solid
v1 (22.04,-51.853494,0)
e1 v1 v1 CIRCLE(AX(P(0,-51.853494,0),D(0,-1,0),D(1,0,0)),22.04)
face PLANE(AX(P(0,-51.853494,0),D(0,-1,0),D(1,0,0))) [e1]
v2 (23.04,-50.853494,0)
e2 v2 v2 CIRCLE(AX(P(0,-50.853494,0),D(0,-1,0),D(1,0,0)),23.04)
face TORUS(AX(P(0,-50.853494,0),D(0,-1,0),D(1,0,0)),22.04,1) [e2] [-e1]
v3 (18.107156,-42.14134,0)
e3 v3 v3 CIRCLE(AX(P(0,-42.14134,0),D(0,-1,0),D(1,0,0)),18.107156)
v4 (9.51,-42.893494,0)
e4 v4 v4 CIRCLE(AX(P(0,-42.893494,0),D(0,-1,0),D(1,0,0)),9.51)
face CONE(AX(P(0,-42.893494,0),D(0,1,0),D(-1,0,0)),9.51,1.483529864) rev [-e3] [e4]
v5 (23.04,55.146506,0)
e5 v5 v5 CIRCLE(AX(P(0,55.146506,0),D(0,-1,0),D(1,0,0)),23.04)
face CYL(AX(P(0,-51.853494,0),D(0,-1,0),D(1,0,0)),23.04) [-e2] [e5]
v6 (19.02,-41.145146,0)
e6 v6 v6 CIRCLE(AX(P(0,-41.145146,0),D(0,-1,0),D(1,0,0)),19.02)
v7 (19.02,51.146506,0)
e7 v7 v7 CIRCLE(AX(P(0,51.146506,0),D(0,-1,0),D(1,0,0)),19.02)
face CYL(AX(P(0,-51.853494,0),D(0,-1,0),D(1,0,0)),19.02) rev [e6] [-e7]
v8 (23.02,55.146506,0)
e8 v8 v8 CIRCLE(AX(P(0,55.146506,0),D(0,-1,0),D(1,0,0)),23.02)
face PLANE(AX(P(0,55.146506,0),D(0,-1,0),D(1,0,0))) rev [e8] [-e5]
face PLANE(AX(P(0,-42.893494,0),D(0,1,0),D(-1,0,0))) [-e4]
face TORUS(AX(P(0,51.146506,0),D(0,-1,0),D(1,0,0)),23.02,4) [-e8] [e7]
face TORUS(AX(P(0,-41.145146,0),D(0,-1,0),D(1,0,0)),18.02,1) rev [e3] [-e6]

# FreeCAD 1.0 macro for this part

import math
import FreeCAD as App
import Part
import Sketcher
from FreeCAD import Vector
Q = App.Units.Quantity

doc = App.newDocument("Part")
body = doc.addObject("PartDesign::Body", "Body")

# Sketch on XY plane
sketch1 = body.newObject("Sketcher::SketchObject", "Sketch")
sketch1.AttachmentSupport = (doc.getObject("XY_Plane"), [""])
sketch1.MapMode = "FlatFace"
sketch1.addGeometry([
    Part.LineSegment(Vector(-23.04, 55.146506, 0), Vector(-23.04, -50.853494, 0)),  # 0
    Part.ArcOfCircle(Part.Circle(Vector(-22.04, -50.853494, 0), Vector(0, 0, 1), 1), math.radians(-180), math.radians(-90)),  # 1
    Part.LineSegment(Vector(-22.04, -51.853494, 0), Vector(0, -51.853494, 0)),  # 2
    Part.LineSegment(Vector(0, -51.853494, 0), Vector(0, -42.893494, 0)),  # 3
    Part.LineSegment(Vector(0, -42.893494, 0), Vector(-9.51, -42.893494, 0)),  # 4
    Part.LineSegment(Vector(-9.51, -42.893494, 0), Vector(-18.107156, -42.14134, 0)),  # 5
    Part.ArcOfCircle(Part.Circle(Vector(-18.02, -41.145146, 0), Vector(0, 0, 1), 1), math.radians(-180), math.radians(-95)),  # 6
    Part.LineSegment(Vector(-19.02, -41.145146, 0), Vector(-19.02, 51.146506, 0)),  # 7
    Part.ArcOfCircle(Part.Circle(Vector(-23.02, 51.146506, 0), Vector(0, 0, 1), 4), math.radians(0), math.radians(90)),  # 8
    Part.LineSegment(Vector(-23.02, 55.146506, 0), Vector(-23.04, 55.146506, 0)),  # 9
], False)
sketch1.addConstraint([
    Sketcher.Constraint("Tangent", 0, 2, 1, 1),
    Sketcher.Constraint("Tangent", 1, 2, 2, 1),
    Sketcher.Constraint("Coincident", 2, 2, 3, 1),
    Sketcher.Constraint("Coincident", 3, 2, 4, 1),
    Sketcher.Constraint("Coincident", 4, 2, 5, 1),
    Sketcher.Constraint("Tangent", 5, 2, 6, 2),
    Sketcher.Constraint("Tangent", 6, 1, 7, 1),
    Sketcher.Constraint("Tangent", 7, 2, 8, 1),
    Sketcher.Constraint("Tangent", 8, 2, 9, 1),
    Sketcher.Constraint("Coincident", 9, 2, 0, 1),
    Sketcher.Constraint("Vertical", 0),
    Sketcher.Constraint("Horizontal", 2),
    Sketcher.Constraint("Vertical", 3),
    Sketcher.Constraint("Horizontal", 4),
    Sketcher.Constraint("Vertical", 7),
    Sketcher.Constraint("Horizontal", 9),
    Sketcher.Constraint("Equal", 1, 6),
    Sketcher.Constraint("PointOnObject", 2, 2, -2),
    Sketcher.Constraint("Radius", 1, Q("1 mm")),
    Sketcher.Constraint("Radius", 8, Q("4 mm")),
    Sketcher.Constraint("DistanceY", 0, 2, 0, 1, Q("106 mm")),
    Sketcher.Constraint("Angle", 5, Q("175 deg")),
    Sketcher.Constraint("DistanceX", 2, 1, 2, 2, Q("22.04 mm")),
    Sketcher.Constraint("DistanceX", 4, 2, 4, 1, Q("9.51 mm")),
    Sketcher.Constraint("DistanceX", 9, 2, 9, 1, Q("0.02 mm")),
    Sketcher.Constraint("DistanceY", 3, 1, 3, 2, Q("8.96 mm")),
    Sketcher.Constraint("DistanceY", 5, 2, -1, 1, Q("42.14134 mm")),
])
revolution = body.newObject("PartDesign::Revolution", "Revolution")
revolution.Profile = sketch1
revolution.ReferenceAxis = (sketch1, ["V_Axis"])
revolution.Angle = 360

doc.recompute()
